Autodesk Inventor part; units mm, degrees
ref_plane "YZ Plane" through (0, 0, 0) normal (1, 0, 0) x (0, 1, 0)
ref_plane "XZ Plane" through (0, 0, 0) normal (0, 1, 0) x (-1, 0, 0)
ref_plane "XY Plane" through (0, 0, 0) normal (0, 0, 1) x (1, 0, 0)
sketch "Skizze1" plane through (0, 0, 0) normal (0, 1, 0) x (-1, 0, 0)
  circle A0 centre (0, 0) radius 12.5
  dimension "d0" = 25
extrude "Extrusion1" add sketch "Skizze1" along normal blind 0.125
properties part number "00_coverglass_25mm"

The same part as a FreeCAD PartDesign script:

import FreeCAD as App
import Part
import Sketcher
Q = App.Units.Quantity

doc = App.newDocument("Part")
body = doc.addObject("PartDesign::Body", "Body")

# Sketch on XZ plane
sketch1 = doc.addObject("Sketcher::SketchObject", "Sketch")
body.addObject(sketch1)
sketch1.AttachmentSupport = (doc.XZ_Plane, [""])
sketch1.MapMode = "FlatFace"
sketch1.addGeometry(Part.Circle(App.Vector(0, 0, 0), App.Vector(0, 0, 1), 12), False)
sketch1.addConstraint(Sketcher.Constraint("Coincident", 0, 3, -1, 1))
sketch1.addConstraint(Sketcher.Constraint("Diameter", 0, Q("25 mm")))
pad1 = doc.addObject("PartDesign::Pad", "Pad")
body.addObject(pad1)
pad1.Profile = sketch1
pad1.Length = 0.125
pad1.Reversed = True

doc.recompute()
